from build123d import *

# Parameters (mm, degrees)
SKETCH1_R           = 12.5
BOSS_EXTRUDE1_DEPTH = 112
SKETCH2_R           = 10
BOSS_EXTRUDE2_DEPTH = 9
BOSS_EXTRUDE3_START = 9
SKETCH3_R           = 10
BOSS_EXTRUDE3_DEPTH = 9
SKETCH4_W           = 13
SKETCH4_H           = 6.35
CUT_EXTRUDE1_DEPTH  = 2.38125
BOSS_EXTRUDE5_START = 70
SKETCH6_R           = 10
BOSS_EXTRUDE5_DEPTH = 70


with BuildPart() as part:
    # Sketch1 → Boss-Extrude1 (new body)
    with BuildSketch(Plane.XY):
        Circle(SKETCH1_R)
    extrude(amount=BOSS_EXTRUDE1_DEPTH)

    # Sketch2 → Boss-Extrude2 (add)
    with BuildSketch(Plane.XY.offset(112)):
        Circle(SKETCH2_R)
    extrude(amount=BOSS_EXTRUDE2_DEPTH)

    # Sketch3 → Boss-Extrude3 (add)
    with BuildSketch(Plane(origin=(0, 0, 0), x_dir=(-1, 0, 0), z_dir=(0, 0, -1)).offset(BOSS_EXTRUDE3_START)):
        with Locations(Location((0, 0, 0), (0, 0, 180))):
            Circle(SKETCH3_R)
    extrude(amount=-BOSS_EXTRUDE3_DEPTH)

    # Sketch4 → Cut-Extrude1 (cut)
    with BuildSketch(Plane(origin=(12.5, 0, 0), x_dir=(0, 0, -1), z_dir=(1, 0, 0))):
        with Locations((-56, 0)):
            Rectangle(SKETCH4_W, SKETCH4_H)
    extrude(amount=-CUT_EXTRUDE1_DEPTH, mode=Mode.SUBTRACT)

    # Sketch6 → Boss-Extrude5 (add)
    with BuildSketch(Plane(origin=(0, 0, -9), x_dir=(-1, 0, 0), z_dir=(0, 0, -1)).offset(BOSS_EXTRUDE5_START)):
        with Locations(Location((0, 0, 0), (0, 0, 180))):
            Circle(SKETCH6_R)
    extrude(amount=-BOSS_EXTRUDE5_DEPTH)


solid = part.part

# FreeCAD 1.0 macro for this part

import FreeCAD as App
import Part
import Sketcher
Q = App.Units.Quantity


def add_polygon(sketch, points):
    """Adds a closed chain of lines whose ends are joined by coincident constraints."""
    first, n = sketch.GeometryCount, len(points)
    for a, b in zip(points, points[1:] + points[:1]):
        sketch.addGeometry(Part.LineSegment(App.Vector(*a, 0), App.Vector(*b, 0)), False)
    for i in range(n):
        sketch.addConstraint(Sketcher.Constraint("Coincident", first + i, 2, first + (i + 1) % n, 1))

doc = App.newDocument("Part")
params = doc.addObject("Spreadsheet::Sheet", "Params")
for row, (alias, value) in enumerate([
    ("sketch1_diameter", "25 mm"),
    ("pad1_length", "112 mm"),
    ("sketch2_diameter", "20 mm"),
    ("pad2_length", "9 mm"),
    ("sketch3_diameter", "20 mm"),
    ("pad3_length", "9 mm"),
    ("sketch4_height", "13 mm"),
    ("sketch4_width", "6.35 mm"),
    ("pocket1_length", "2.38125 mm"),
    ("sketch5_diameter", "20 mm"),
    ("pad4_length", "70 mm"),
], start=1):
    params.set(f"A{row}", alias)
    params.set(f"B{row}", "=" + value)
    params.setAlias(f"B{row}", alias)

body = doc.addObject("PartDesign::Body", "Body")

sketch1 = body.newObject("Sketcher::SketchObject", "Sketch")
sketch1.AttachmentSupport = (doc.getObject("XY_Plane"), [""])
sketch1.MapMode = "FlatFace"
sketch1.addGeometry(Part.Circle(App.Vector(0, 0, 0), App.Vector(0, 0, 1), 12), False)
sketch1.addConstraint([
    Sketcher.Constraint("Coincident", 0, 3, -1, 1),
    Sketcher.Constraint("Diameter", 0, Q("25 mm")),
])
sketch1.setExpression("Constraints[1]", "Params.sketch1_diameter")
pad1 = body.newObject("PartDesign::Pad", "Pad")
pad1.Profile = sketch1
pad1.setExpression("Length", "Params.pad1_length")

sketch2 = body.newObject("Sketcher::SketchObject", "Sketch001")
sketch2.AttachmentSupport = (doc.getObject("XY_Plane"), [""])
sketch2.MapMode = "FlatFace"
sketch2.AttachmentOffset = App.Placement(App.Vector(0, 0, 112), App.Rotation())
sketch2.addGeometry(Part.Circle(App.Vector(0, 0, 0), App.Vector(0, 0, 1), 10), False)
sketch2.addConstraint([
    Sketcher.Constraint("Coincident", 0, 3, -1, 1),
    Sketcher.Constraint("Diameter", 0, Q("20 mm")),
])
sketch2.setExpression("Constraints[1]", "Params.sketch2_diameter")
pad2 = body.newObject("PartDesign::Pad", "Pad001")
pad2.Profile = sketch2
pad2.setExpression("Length", "Params.pad2_length")

sketch3 = body.newObject("Sketcher::SketchObject", "Sketch002")
sketch3.AttachmentSupport = (doc.getObject("XY_Plane"), [""])
sketch3.MapMode = "FlatFace"
sketch3.AttachmentOffset = App.Placement(App.Vector(0, 0, -9), App.Rotation())
sketch3.addGeometry(Part.Circle(App.Vector(0, 0, 0), App.Vector(0, 0, 1), 10), False)
sketch3.addConstraint([
    Sketcher.Constraint("Coincident", 0, 3, -1, 1),
    Sketcher.Constraint("Diameter", 0, Q("20 mm")),
])
sketch3.setExpression("Constraints[1]", "Params.sketch3_diameter")
pad3 = body.newObject("PartDesign::Pad", "Pad002")
pad3.Profile = sketch3
pad3.setExpression("Length", "Params.pad3_length")

sketch4 = body.newObject("Sketcher::SketchObject", "Sketch003")
sketch4.AttachmentSupport = (doc.getObject("YZ_Plane"), [""])
sketch4.MapMode = "FlatFace"
sketch4.AttachmentOffset = App.Placement(App.Vector(0, 0, 12.5), App.Rotation())
add_polygon(sketch4, [(3, 62), (-3, 62), (-3, 50), (3, 50)])
sketch4.addConstraint([
    Sketcher.Constraint("Horizontal", 0),
    Sketcher.Constraint("Vertical", 1),
    Sketcher.Constraint("Horizontal", 2),
    Sketcher.Constraint("Vertical", 3),
    Sketcher.Constraint("DistanceY", 1, 2, 1, 1, Q("13 mm")),
    Sketcher.Constraint("DistanceX", 0, 2, 0, 1, Q("6.35 mm")),
    Sketcher.Constraint("DistanceY", -1, 1, 0, 2, Q("62.5 mm")),
    Sketcher.Constraint("DistanceX", 0, 2, -1, 1, Q("3.175 mm")),
])
sketch4.setExpression("Constraints[8]", "Params.sketch4_height")
sketch4.setExpression("Constraints[9]", "Params.sketch4_width")
pocket1 = body.newObject("PartDesign::Pocket", "Pocket")
pocket1.Profile = sketch4
pocket1.setExpression("Length", "Params.pocket1_length")

sketch5 = body.newObject("Sketcher::SketchObject", "Sketch004")
sketch5.AttachmentSupport = (doc.getObject("XY_Plane"), [""])
sketch5.MapMode = "FlatFace"
sketch5.AttachmentOffset = App.Placement(App.Vector(0, 0, -79), App.Rotation())
sketch5.addGeometry(Part.Circle(App.Vector(0, 0, 0), App.Vector(0, 0, 1), 10), False)
sketch5.addConstraint([
    Sketcher.Constraint("Coincident", 0, 3, -1, 1),
    Sketcher.Constraint("Diameter", 0, Q("20 mm")),
])
sketch5.setExpression("Constraints[1]", "Params.sketch5_diameter")
pad4 = body.newObject("PartDesign::Pad", "Pad003")
pad4.Profile = sketch5
pad4.setExpression("Length", "Params.pad4_length")

doc.recompute()
